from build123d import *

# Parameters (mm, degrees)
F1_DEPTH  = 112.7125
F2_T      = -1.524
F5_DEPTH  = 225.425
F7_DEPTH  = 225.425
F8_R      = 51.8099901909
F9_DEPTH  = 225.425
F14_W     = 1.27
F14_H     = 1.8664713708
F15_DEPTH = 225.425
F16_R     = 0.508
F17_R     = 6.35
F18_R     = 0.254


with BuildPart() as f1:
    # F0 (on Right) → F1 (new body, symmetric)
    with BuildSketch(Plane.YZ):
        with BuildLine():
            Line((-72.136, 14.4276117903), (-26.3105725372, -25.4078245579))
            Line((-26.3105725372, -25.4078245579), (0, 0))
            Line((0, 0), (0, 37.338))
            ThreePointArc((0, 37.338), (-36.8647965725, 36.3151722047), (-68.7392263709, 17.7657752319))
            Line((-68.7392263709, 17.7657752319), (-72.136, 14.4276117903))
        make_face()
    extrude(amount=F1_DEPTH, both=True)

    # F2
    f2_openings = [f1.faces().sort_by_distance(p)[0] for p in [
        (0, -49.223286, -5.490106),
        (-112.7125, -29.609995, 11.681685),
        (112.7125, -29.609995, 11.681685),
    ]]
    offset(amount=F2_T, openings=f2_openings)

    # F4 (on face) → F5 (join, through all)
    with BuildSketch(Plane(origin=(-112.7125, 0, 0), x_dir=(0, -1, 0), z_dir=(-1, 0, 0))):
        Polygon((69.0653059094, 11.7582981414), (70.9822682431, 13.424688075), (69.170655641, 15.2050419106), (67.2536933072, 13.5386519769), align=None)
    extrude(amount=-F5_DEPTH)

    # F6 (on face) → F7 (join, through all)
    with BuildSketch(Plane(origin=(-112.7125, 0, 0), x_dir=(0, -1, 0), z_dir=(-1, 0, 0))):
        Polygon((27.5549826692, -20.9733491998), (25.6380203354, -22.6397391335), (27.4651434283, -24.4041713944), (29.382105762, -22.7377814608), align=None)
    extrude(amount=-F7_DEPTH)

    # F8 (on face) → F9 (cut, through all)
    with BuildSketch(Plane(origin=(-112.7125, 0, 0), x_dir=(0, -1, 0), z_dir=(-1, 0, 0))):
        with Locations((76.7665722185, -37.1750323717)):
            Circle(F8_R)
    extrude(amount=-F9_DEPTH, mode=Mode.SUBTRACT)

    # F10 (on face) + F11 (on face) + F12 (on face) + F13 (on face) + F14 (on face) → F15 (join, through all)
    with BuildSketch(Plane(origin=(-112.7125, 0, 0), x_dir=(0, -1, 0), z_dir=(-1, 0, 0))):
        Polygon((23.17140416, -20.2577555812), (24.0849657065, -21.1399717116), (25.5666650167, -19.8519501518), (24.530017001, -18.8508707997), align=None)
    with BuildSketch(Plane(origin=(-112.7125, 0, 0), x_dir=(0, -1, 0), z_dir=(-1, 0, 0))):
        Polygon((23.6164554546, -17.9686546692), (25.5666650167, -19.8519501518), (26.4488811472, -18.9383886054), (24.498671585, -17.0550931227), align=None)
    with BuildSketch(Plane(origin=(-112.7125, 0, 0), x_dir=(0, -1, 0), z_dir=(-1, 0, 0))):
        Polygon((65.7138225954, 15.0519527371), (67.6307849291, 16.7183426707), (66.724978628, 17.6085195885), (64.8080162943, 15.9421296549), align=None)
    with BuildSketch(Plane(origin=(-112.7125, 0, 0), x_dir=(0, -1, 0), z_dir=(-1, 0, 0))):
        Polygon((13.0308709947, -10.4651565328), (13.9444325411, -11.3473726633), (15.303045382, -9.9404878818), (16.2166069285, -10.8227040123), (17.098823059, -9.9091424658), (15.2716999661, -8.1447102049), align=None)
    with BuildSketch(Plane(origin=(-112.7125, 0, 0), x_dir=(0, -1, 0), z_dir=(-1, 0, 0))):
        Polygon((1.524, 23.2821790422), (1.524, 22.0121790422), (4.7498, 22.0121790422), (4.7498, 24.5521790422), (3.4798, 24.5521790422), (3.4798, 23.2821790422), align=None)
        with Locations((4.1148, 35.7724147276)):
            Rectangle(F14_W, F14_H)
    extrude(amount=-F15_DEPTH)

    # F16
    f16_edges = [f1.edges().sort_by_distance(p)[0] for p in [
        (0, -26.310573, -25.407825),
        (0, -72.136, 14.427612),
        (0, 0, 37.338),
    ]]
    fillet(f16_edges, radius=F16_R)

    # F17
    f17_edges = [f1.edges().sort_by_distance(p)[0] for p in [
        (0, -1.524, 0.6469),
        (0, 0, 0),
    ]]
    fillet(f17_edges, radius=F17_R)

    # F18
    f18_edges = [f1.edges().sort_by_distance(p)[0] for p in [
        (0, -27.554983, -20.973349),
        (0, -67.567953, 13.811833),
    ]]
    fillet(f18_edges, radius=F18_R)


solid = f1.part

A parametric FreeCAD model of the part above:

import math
import FreeCAD as App
import Part
import Sketcher
Q = App.Units.Quantity


def edges_at(feature, points):
    """Names of the edges that pass closest to the given points."""
    edges = feature.Shape.Edges
    near = lambda p: min(range(len(edges)), key=lambda i: edges[i].distToShape(Part.Vertex(*p))[0])
    return sorted({f"Edge{near(p) + 1}" for p in points})


def faces_at(feature, points):
    """Names of the faces that lie closest to the given points."""
    faces = feature.Shape.Faces
    near = lambda p: min(range(len(faces)), key=lambda i: faces[i].distToShape(Part.Vertex(*p))[0])
    return sorted({f"Face{near(p) + 1}" for p in points})

doc = App.newDocument("Part")
params = doc.addObject("Spreadsheet::Sheet", "Params")
for row, (alias, value) in enumerate([
    ("sketch1_height", "1.47 in"),
    ("sketch1_length", "1.44 in"),
    ("sketch1_length2", "0.1875 in"),
    ("pad1_length", "8.875 in"),
    ("thickness_wall", "0.06 in"),
    ("sketch2_length", "0.1 in"),
    ("pad2_length", "8.875 in"),
    ("sketch3_length", "0.1 in"),
    ("pad3_length", "8.875 in"),
    ("sketch5_height", "0.1 in"),
    ("sketch5_length", "0.1 in"),
    ("sketch5_width", "0.127 in"),
    ("sketch5_length2", "0.077 in"),
    ("pad4_length", "8.875 in"),
    ("fillet_radius", "0.02 in"),
    ("fillet2_radius", "0.25 in"),
    ("fillet3_radius", "0.01 in"),
], start=1):
    params.set(f"A{row}", alias)
    params.set(f"B{row}", "=" + value)
    params.setAlias(f"B{row}", alias)

body = doc.addObject("PartDesign::Body", "Body")

# Sketch on YZ plane
sketch1 = body.newObject("Sketcher::SketchObject", "Sketch")
sketch1.AttachmentSupport = (doc.getObject("YZ_Plane"), [""])
sketch1.MapMode = "FlatFace"
sketch1.addGeometry(Part.LineSegment(App.Vector(-72.1, 14.4, 0), App.Vector(-26.3, -25.4, 0)), False)
sketch1.addGeometry(Part.LineSegment(App.Vector(-26.3, -25.4, 0), App.Vector(0, 0, 0)), False)
sketch1.addGeometry(Part.LineSegment(App.Vector(0, 0, 0), App.Vector(0, 37.3, 0)), False)
sketch1.addGeometry(Part.ArcOfCircle(Part.Circle(App.Vector(-16.4, -35.5, 0), App.Vector(0, 0, 1), 74.6), math.radians(77), math.radians(135)), False)
sketch1.addGeometry(Part.LineSegment(App.Vector(-68.7, 17.8, 0), App.Vector(-72.1, 14.4, 0)), False)
sketch1.addConstraint(Sketcher.Constraint("Coincident", 0, 2, 1, 1))
sketch1.addConstraint(Sketcher.Constraint("Coincident", 1, 2, 2, 1))
sketch1.addConstraint(Sketcher.Constraint("Coincident", 2, 2, 3, 1))
sketch1.addConstraint(Sketcher.Constraint("Tangent", 3, 2, 4, 1))
sketch1.addConstraint(Sketcher.Constraint("Coincident", 4, 2, 0, 1))
sketch1.addConstraint(Sketcher.Constraint("Vertical", 2))
sketch1.addConstraint(Sketcher.Constraint("Coincident", 1, 2, -1, 1))
sketch1.addConstraint(Sketcher.Constraint("Angle", 0, Q("-41 deg")))
sketch1.addConstraint(Sketcher.Constraint("Angle", 1, Q("44 deg")))
sketch1.addConstraint(Sketcher.Constraint("DistanceY", 2, 1, 2, 2, Q("1.47 in")))
sketch1.addConstraint(Sketcher.Constraint("Distance", 1, Q("1.44 in")))
sketch1.addConstraint(Sketcher.Constraint("DistanceX", 4, 2, -1, 1, Q("2.84 in")))
sketch1.addConstraint(Sketcher.Constraint("Distance", 4, Q("0.1875 in")))
sketch1.addConstraint(Sketcher.Constraint("Radius", 3, Q("74.633472 mm")))
sketch1.setExpression("Constraints[9]", "Params.sketch1_height")
sketch1.setExpression("Constraints[10]", "Params.sketch1_length")
sketch1.setExpression("Constraints[12]", "Params.sketch1_length2")
pad1 = body.newObject("PartDesign::Pad", "Pad")
pad1.Profile = sketch1
pad1.setExpression("Length", "Params.pad1_length")
pad1.Midplane = True
doc.recompute()

thickness = body.newObject("PartDesign::Thickness", "Thickness")
thickness.Base = (pad1, faces_at(pad1, [(0, -49.223, -5.49), (-112.713, -36.068, 6.88), (112.713, -36.068, 6.88)]))
thickness.setExpression("Value", "Params.thickness_wall")
thickness.Reversed = True
thickness.Join = "Arc"

# Sketch on YZ plane
sketch2 = body.newObject("Sketcher::SketchObject", "Sketch001")
sketch2.AttachmentSupport = (doc.getObject("YZ_Plane"), [""])
sketch2.MapMode = "FlatFace"
sketch2.AttachmentOffset = App.Placement(App.Vector(0, 0, -4.4375 * 25.4), App.Rotation())
sketch2.addGeometry(Part.LineSegment(App.Vector(-69.1, 11.8, 0), App.Vector(-71, 13.4, 0)), False)
sketch2.addGeometry(Part.LineSegment(App.Vector(-71, 13.4, 0), App.Vector(-69.2, 15.2, 0)), False)
sketch2.addGeometry(Part.LineSegment(App.Vector(-69.2, 15.2, 0), App.Vector(-67.3, 13.5, 0)), False)
sketch2.addGeometry(Part.LineSegment(App.Vector(-67.3, 13.5, 0), App.Vector(-69.1, 11.8, 0)), False)
sketch2.addConstraint(Sketcher.Constraint("Coincident", 0, 2, 1, 1))
sketch2.addConstraint(Sketcher.Constraint("Coincident", 1, 2, 2, 1))
sketch2.addConstraint(Sketcher.Constraint("Coincident", 2, 2, 3, 1))
sketch2.addConstraint(Sketcher.Constraint("Coincident", 3, 2, 0, 1))
sketch2.addConstraint(Sketcher.Constraint("Parallel", 0, 2))
sketch2.addConstraint(Sketcher.Constraint("Parallel", 1, 3))
sketch2.addConstraint(Sketcher.Constraint("Equal", 0, 1))
sketch2.addConstraint(Sketcher.Constraint("Angle", 0, Q("139 deg")))
sketch2.addConstraint(Sketcher.Constraint("Distance", 0, Q("0.1 in")))
sketch2.addConstraint(Sketcher.Constraint("DistanceY", -1, 1, 3, 2, Q("11.758298 mm")))
sketch2.addConstraint(Sketcher.Constraint("DistanceX", 0, 2, -1, 1, Q("70.982268 mm")))
sketch2.addConstraint(Sketcher.Constraint("DistanceY", -1, 1, 1, 2, Q("15.205042 mm")))
sketch2.setExpression("Constraints[8]", "Params.sketch2_length")
pad2 = body.newObject("PartDesign::Pad", "Pad001")
pad2.Profile = sketch2
pad2.setExpression("Length", "Params.pad2_length")

# Sketch on YZ plane
sketch3 = body.newObject("Sketcher::SketchObject", "Sketch002")
sketch3.AttachmentSupport = (doc.getObject("YZ_Plane"), [""])
sketch3.MapMode = "FlatFace"
sketch3.AttachmentOffset = App.Placement(App.Vector(0, 0, -4.4375 * 25.4), App.Rotation())
sketch3.addGeometry(Part.LineSegment(App.Vector(-27.6, -21, 0), App.Vector(-25.6, -22.6, 0)), False)
sketch3.addGeometry(Part.LineSegment(App.Vector(-25.6, -22.6, 0), App.Vector(-27.5, -24.4, 0)), False)
sketch3.addGeometry(Part.LineSegment(App.Vector(-27.5, -24.4, 0), App.Vector(-29.4, -22.7, 0)), False)
sketch3.addGeometry(Part.LineSegment(App.Vector(-29.4, -22.7, 0), App.Vector(-27.6, -21, 0)), False)
sketch3.addConstraint(Sketcher.Constraint("Coincident", 0, 2, 1, 1))
sketch3.addConstraint(Sketcher.Constraint("Coincident", 1, 2, 2, 1))
sketch3.addConstraint(Sketcher.Constraint("Coincident", 2, 2, 3, 1))
sketch3.addConstraint(Sketcher.Constraint("Coincident", 3, 2, 0, 1))
sketch3.addConstraint(Sketcher.Constraint("Parallel", 0, 2))
sketch3.addConstraint(Sketcher.Constraint("Parallel", 1, 3))
sketch3.addConstraint(Sketcher.Constraint("Equal", 0, 1))
sketch3.addConstraint(Sketcher.Constraint("Angle", 0, Q("-41 deg")))
sketch3.addConstraint(Sketcher.Constraint("Angle", 1, Q("-136 deg")))
sketch3.addConstraint(Sketcher.Constraint("Distance", 0, Q("0.1 in")))
sketch3.addConstraint(Sketcher.Constraint("DistanceX", 0, 2, -1, 1, Q("25.63802 mm")))
sketch3.addConstraint(Sketcher.Constraint("DistanceY", 0, 2, -1, 1, Q("22.639739 mm")))
sketch3.setExpression("Constraints[9]", "Params.sketch3_length")
pad3 = body.newObject("PartDesign::Pad", "Pad002")
pad3.Profile = sketch3
pad3.setExpression("Length", "Params.pad3_length")

# Sketch on YZ plane
sketch4 = body.newObject("Sketcher::SketchObject", "Sketch003")
sketch4.AttachmentSupport = (doc.getObject("YZ_Plane"), [""])
sketch4.MapMode = "FlatFace"
sketch4.AttachmentOffset = App.Placement(App.Vector(0, 0, -4.4375 * 25.4), App.Rotation())
sketch4.addGeometry(Part.Circle(App.Vector(-77, -37, 0), App.Vector(0, 0, 1), 52), False)
sketch4.addConstraint(Sketcher.Constraint("Diameter", 0, Q("103.61998 mm")))
sketch4.addConstraint(Sketcher.Constraint("DistanceX", 0, 3, -1, 1, Q("76.766572 mm")))
sketch4.addConstraint(Sketcher.Constraint("DistanceY", 0, 3, -1, 1, Q("37.175032 mm")))
pocket1 = body.newObject("PartDesign::Pocket", "Pocket")
pocket1.Profile = sketch4
pocket1.Type = "ThroughAll"
pocket1.Reversed = True

# Sketch on YZ plane
sketch5 = body.newObject("Sketcher::SketchObject", "Sketch004")
sketch5.AttachmentSupport = (doc.getObject("YZ_Plane"), [""])
sketch5.MapMode = "FlatFace"
sketch5.AttachmentOffset = App.Placement(App.Vector(0, 0, -4.4375 * 25.4), App.Rotation())
sketch5.addGeometry(Part.LineSegment(App.Vector(-23.2, -20.3, 0), App.Vector(-24.1, -21.1, 0)), False)
sketch5.addGeometry(Part.LineSegment(App.Vector(-24.1, -21.1, 0), App.Vector(-25.6, -19.9, 0)), False)
sketch5.addGeometry(Part.LineSegment(App.Vector(-25.6, -19.9, 0), App.Vector(-26.4, -18.9, 0)), False)
sketch5.addGeometry(Part.LineSegment(App.Vector(-26.4, -18.9, 0), App.Vector(-24.5, -17.1, 0)), False)
sketch5.addGeometry(Part.LineSegment(App.Vector(-24.5, -17.1, 0), App.Vector(-23.6, -18, 0)), False)
sketch5.addGeometry(Part.LineSegment(App.Vector(-23.6, -18, 0), App.Vector(-24.5, -18.9, 0)), False)
sketch5.addGeometry(Part.LineSegment(App.Vector(-24.5, -18.9, 0), App.Vector(-23.2, -20.3, 0)), False)
sketch5.addGeometry(Part.LineSegment(App.Vector(-65.7, 15.1, 0), App.Vector(-67.6, 16.7, 0)), False)
sketch5.addGeometry(Part.LineSegment(App.Vector(-67.6, 16.7, 0), App.Vector(-66.7, 17.6, 0)), False)
sketch5.addGeometry(Part.LineSegment(App.Vector(-66.7, 17.6, 0), App.Vector(-64.8, 15.9, 0)), False)
sketch5.addGeometry(Part.LineSegment(App.Vector(-64.8, 15.9, 0), App.Vector(-65.7, 15.1, 0)), False)
sketch5.addGeometry(Part.LineSegment(App.Vector(-13, -10.5, 0), App.Vector(-13.9, -11.3, 0)), False)
sketch5.addGeometry(Part.LineSegment(App.Vector(-13.9, -11.3, 0), App.Vector(-15.3, -9.9, 0)), False)
sketch5.addGeometry(Part.LineSegment(App.Vector(-15.3, -9.9, 0), App.Vector(-16.2, -10.8, 0)), False)
sketch5.addGeometry(Part.LineSegment(App.Vector(-16.2, -10.8, 0), App.Vector(-17.1, -9.9, 0)), False)
sketch5.addGeometry(Part.LineSegment(App.Vector(-17.1, -9.9, 0), App.Vector(-15.3, -8.1, 0)), False)
sketch5.addGeometry(Part.LineSegment(App.Vector(-15.3, -8.1, 0), App.Vector(-13, -10.5, 0)), False)
sketch5.addGeometry(Part.LineSegment(App.Vector(-1.5, 23.3, 0), App.Vector(-1.5, 22, 0)), False)
sketch5.addGeometry(Part.LineSegment(App.Vector(-1.5, 22, 0), App.Vector(-4.7, 22, 0)), False)
sketch5.addGeometry(Part.LineSegment(App.Vector(-4.7, 22, 0), App.Vector(-4.7, 24.6, 0)), False)
sketch5.addGeometry(Part.LineSegment(App.Vector(-4.7, 24.6, 0), App.Vector(-3.5, 24.6, 0)), False)
sketch5.addGeometry(Part.LineSegment(App.Vector(-3.5, 24.6, 0), App.Vector(-3.5, 23.3, 0)), False)
sketch5.addGeometry(Part.LineSegment(App.Vector(-3.5, 23.3, 0), App.Vector(-1.5, 23.3, 0)), False)
sketch5.addGeometry(Part.LineSegment(App.Vector(-3.5, 36.7, 0), App.Vector(-3.5, 34.8, 0)), False)
sketch5.addGeometry(Part.LineSegment(App.Vector(-3.5, 34.8, 0), App.Vector(-4.7, 34.8, 0)), False)
sketch5.addGeometry(Part.LineSegment(App.Vector(-4.7, 34.8, 0), App.Vector(-4.7, 36.7, 0)), False)
sketch5.addGeometry(Part.LineSegment(App.Vector(-4.7, 36.7, 0), App.Vector(-3.5, 36.7, 0)), False)
sketch5.addConstraint(Sketcher.Constraint("Coincident", 0, 2, 1, 1))
sketch5.addConstraint(Sketcher.Constraint("Coincident", 1, 2, 2, 1))
sketch5.addConstraint(Sketcher.Constraint("Coincident", 2, 2, 3, 1))
sketch5.addConstraint(Sketcher.Constraint("Coincident", 3, 2, 4, 1))
sketch5.addConstraint(Sketcher.Constraint("Coincident", 4, 2, 5, 1))
sketch5.addConstraint(Sketcher.Constraint("Coincident", 5, 2, 6, 1))
sketch5.addConstraint(Sketcher.Constraint("Coincident", 6, 2, 0, 1))
sketch5.addConstraint(Sketcher.Constraint("Coincident", 7, 2, 8, 1))
sketch5.addConstraint(Sketcher.Constraint("Coincident", 8, 2, 9, 1))
sketch5.addConstraint(Sketcher.Constraint("Coincident", 9, 2, 10, 1))
sketch5.addConstraint(Sketcher.Constraint("Coincident", 10, 2, 7, 1))
sketch5.addConstraint(Sketcher.Constraint("Coincident", 11, 2, 12, 1))
sketch5.addConstraint(Sketcher.Constraint("Coincident", 12, 2, 13, 1))
sketch5.addConstraint(Sketcher.Constraint("Coincident", 13, 2, 14, 1))
sketch5.addConstraint(Sketcher.Constraint("Coincident", 14, 2, 15, 1))
sketch5.addConstraint(Sketcher.Constraint("Coincident", 15, 2, 16, 1))
sketch5.addConstraint(Sketcher.Constraint("Coincident", 16, 2, 11, 1))
sketch5.addConstraint(Sketcher.Constraint("Coincident", 17, 2, 18, 1))
sketch5.addConstraint(Sketcher.Constraint("Coincident", 18, 2, 19, 1))
sketch5.addConstraint(Sketcher.Constraint("Coincident", 19, 2, 20, 1))
sketch5.addConstraint(Sketcher.Constraint("Coincident", 20, 2, 21, 1))
sketch5.addConstraint(Sketcher.Constraint("Coincident", 21, 2, 22, 1))
sketch5.addConstraint(Sketcher.Constraint("Coincident", 22, 2, 17, 1))
sketch5.addConstraint(Sketcher.Constraint("Coincident", 23, 2, 24, 1))
sketch5.addConstraint(Sketcher.Constraint("Coincident", 24, 2, 25, 1))
sketch5.addConstraint(Sketcher.Constraint("Coincident", 25, 2, 26, 1))
sketch5.addConstraint(Sketcher.Constraint("Coincident", 26, 2, 23, 1))
sketch5.addConstraint(Sketcher.Constraint("Vertical", 17))
sketch5.addConstraint(Sketcher.Constraint("Horizontal", 18))
sketch5.addConstraint(Sketcher.Constraint("Vertical", 19))
sketch5.addConstraint(Sketcher.Constraint("Horizontal", 20))
sketch5.addConstraint(Sketcher.Constraint("Vertical", 21))
sketch5.addConstraint(Sketcher.Constraint("Horizontal", 22))
sketch5.addConstraint(Sketcher.Constraint("Vertical", 23))
sketch5.addConstraint(Sketcher.Constraint("Horizontal", 24))
sketch5.addConstraint(Sketcher.Constraint("Vertical", 25))
sketch5.addConstraint(Sketcher.Constraint("Horizontal", 26))
sketch5.addConstraint(Sketcher.Constraint("Perpendicular", 0, 2))
sketch5.addConstraint(Sketcher.Constraint("Perpendicular", 2, 3))
sketch5.addConstraint(Sketcher.Constraint("Perpendicular", 3, 4))
sketch5.addConstraint(Sketcher.Constraint("Perpendicular", 4, 5))
sketch5.addConstraint(Sketcher.Constraint("Perpendicular", 5, 6))
sketch5.addConstraint(Sketcher.Constraint("Parallel", 1, 7))
sketch5.addConstraint(Sketcher.Constraint("Parallel", 7, 9))
sketch5.addConstraint(Sketcher.Constraint("Parallel", 8, 10))
sketch5.addConstraint(Sketcher.Constraint("Perpendicular", 6, 11))
sketch5.addConstraint(Sketcher.Constraint("Perpendicular", 11, 12))
sketch5.addConstraint(Sketcher.Constraint("Perpendicular", 12, 13))
sketch5.addConstraint(Sketcher.Constraint("Perpendicular", 13, 14))
sketch5.addConstraint(Sketcher.Constraint("Perpendicular", 14, 15))
sketch5.addConstraint(Sketcher.Constraint("Perpendicular", 15, 16))
sketch5.addConstraint(Sketcher.Constraint("Vertical", 21, 2, 23, 2))
sketch5.addConstraint(Sketcher.Constraint("Vertical", 19, 2, 24, 2))
sketch5.addConstraint(Sketcher.Constraint("Equal", 26, 17))
sketch5.addConstraint(Sketcher.Constraint("Equal", 17, 21))
sketch5.addConstraint(Sketcher.Constraint("Equal", 0, 2))
sketch5.addConstraint(Sketcher.Constraint("Equal", 2, 4))
sketch5.addConstraint(Sketcher.Constraint("Equal", 4, 5))
sketch5.addConstraint(Sketcher.Constraint("Equal", 5, 8))
sketch5.addConstraint(Sketcher.Constraint("Equal", 10, 11))
sketch5.addConstraint(Sketcher.Constraint("Equal", 6, 12))
sketch5.addConstraint(Sketcher.Constraint("Equal", 11, 13))
sketch5.addConstraint(Sketcher.Constraint("Equal", 13, 14))
sketch5.addConstraint(Sketcher.Constraint("Equal", 9, 15))
sketch5.addConstraint(Sketcher.Constraint("DistanceY", 19, 1, 19, 2, Q("0.1 in")))
sketch5.addConstraint(Sketcher.Constraint("Angle", 0, Q("-136 deg")))
sketch5.addConstraint(Sketcher.Constraint("Angle", 1, Q("139 deg")))
sketch5.addConstraint(Sketcher.Constraint("Distance", 7, Q("0.1 in")))
sketch5.addConstraint(Sketcher.Constraint("DistanceX", 18, 2, 18, 1, Q("0.127 in")))
sketch5.addConstraint(Sketcher.Constraint("DistanceX", 17, 2, -1, 1, Q("0.06 in")))
sketch5.addConstraint(Sketcher.Constraint("Distance", 6, Q("0.077 in")))
sketch5.addConstraint(Sketcher.Constraint("DistanceY", 20, 2, 23, 2, Q("0.405 in")))
sketch5.addConstraint(Sketcher.Constraint("DistanceY", 23, 2, 23, 1, Q("1.866471 mm")))
sketch5.addConstraint(Sketcher.Constraint("DistanceX", 15, 2, -1, 1, Q("15.2717 mm")))
sketch5.addConstraint(Sketcher.Constraint("DistanceY", 5, 2, 11, 2, Q("7.503498 mm")))
sketch5.addConstraint(Sketcher.Constraint("DistanceY", 0, 2, -1, 1, Q("21.139972 mm")))
sketch5.addConstraint(Sketcher.Constraint("DistanceX", 2, 2, -1, 1, Q("26.448881 mm")))
sketch5.addConstraint(Sketcher.Constraint("DistanceX", 8, 2, -1, 1, Q("66.724979 mm")))
sketch5.addConstraint(Sketcher.Constraint("DistanceY", -1, 1, 8, 2, Q("17.60852 mm")))
sketch5.addConstraint(Sketcher.Constraint("DistanceY", -1, 1, 17, 2, Q("22.012179 mm")))
sketch5.addConstraint(Sketcher.Constraint("DistanceY", 2, 2, 7, 2, Q("35.656731 mm")))
sketch5.setExpression("Constraints[64]", "Params.sketch5_height")
sketch5.setExpression("Constraints[67]", "Params.sketch5_length")
sketch5.setExpression("Constraints[68]", "Params.sketch5_width")
sketch5.setExpression("Constraints[70]", "Params.sketch5_length2")
pad4 = body.newObject("PartDesign::Pad", "Pad003")
pad4.Profile = sketch5
pad4.setExpression("Length", "Params.pad4_length")
doc.recompute()

fillet = body.newObject("PartDesign::Fillet", "Fillet")
fillet.Base = (pad4, edges_at(pad4, [(0, -26.311, -25.408), (0, -72.136, 14.428), (0, 0, 37.338)]))
fillet.setExpression("Radius", "Params.fillet_radius")
doc.recompute()

fillet2 = body.newObject("PartDesign::Fillet", "Fillet001")
fillet2.Base = (fillet, edges_at(fillet, [(0, -1.524, 0.647), (0, 0, 0)]))
fillet2.setExpression("Radius", "Params.fillet2_radius")
doc.recompute()

fillet3 = body.newObject("PartDesign::Fillet", "Fillet002")
fillet3.Base = (fillet2, edges_at(fillet2, [(0, -27.555, -20.973), (0, -67.568, 13.812)]))
fillet3.setExpression("Radius", "Params.fillet3_radius")

doc.recompute()
